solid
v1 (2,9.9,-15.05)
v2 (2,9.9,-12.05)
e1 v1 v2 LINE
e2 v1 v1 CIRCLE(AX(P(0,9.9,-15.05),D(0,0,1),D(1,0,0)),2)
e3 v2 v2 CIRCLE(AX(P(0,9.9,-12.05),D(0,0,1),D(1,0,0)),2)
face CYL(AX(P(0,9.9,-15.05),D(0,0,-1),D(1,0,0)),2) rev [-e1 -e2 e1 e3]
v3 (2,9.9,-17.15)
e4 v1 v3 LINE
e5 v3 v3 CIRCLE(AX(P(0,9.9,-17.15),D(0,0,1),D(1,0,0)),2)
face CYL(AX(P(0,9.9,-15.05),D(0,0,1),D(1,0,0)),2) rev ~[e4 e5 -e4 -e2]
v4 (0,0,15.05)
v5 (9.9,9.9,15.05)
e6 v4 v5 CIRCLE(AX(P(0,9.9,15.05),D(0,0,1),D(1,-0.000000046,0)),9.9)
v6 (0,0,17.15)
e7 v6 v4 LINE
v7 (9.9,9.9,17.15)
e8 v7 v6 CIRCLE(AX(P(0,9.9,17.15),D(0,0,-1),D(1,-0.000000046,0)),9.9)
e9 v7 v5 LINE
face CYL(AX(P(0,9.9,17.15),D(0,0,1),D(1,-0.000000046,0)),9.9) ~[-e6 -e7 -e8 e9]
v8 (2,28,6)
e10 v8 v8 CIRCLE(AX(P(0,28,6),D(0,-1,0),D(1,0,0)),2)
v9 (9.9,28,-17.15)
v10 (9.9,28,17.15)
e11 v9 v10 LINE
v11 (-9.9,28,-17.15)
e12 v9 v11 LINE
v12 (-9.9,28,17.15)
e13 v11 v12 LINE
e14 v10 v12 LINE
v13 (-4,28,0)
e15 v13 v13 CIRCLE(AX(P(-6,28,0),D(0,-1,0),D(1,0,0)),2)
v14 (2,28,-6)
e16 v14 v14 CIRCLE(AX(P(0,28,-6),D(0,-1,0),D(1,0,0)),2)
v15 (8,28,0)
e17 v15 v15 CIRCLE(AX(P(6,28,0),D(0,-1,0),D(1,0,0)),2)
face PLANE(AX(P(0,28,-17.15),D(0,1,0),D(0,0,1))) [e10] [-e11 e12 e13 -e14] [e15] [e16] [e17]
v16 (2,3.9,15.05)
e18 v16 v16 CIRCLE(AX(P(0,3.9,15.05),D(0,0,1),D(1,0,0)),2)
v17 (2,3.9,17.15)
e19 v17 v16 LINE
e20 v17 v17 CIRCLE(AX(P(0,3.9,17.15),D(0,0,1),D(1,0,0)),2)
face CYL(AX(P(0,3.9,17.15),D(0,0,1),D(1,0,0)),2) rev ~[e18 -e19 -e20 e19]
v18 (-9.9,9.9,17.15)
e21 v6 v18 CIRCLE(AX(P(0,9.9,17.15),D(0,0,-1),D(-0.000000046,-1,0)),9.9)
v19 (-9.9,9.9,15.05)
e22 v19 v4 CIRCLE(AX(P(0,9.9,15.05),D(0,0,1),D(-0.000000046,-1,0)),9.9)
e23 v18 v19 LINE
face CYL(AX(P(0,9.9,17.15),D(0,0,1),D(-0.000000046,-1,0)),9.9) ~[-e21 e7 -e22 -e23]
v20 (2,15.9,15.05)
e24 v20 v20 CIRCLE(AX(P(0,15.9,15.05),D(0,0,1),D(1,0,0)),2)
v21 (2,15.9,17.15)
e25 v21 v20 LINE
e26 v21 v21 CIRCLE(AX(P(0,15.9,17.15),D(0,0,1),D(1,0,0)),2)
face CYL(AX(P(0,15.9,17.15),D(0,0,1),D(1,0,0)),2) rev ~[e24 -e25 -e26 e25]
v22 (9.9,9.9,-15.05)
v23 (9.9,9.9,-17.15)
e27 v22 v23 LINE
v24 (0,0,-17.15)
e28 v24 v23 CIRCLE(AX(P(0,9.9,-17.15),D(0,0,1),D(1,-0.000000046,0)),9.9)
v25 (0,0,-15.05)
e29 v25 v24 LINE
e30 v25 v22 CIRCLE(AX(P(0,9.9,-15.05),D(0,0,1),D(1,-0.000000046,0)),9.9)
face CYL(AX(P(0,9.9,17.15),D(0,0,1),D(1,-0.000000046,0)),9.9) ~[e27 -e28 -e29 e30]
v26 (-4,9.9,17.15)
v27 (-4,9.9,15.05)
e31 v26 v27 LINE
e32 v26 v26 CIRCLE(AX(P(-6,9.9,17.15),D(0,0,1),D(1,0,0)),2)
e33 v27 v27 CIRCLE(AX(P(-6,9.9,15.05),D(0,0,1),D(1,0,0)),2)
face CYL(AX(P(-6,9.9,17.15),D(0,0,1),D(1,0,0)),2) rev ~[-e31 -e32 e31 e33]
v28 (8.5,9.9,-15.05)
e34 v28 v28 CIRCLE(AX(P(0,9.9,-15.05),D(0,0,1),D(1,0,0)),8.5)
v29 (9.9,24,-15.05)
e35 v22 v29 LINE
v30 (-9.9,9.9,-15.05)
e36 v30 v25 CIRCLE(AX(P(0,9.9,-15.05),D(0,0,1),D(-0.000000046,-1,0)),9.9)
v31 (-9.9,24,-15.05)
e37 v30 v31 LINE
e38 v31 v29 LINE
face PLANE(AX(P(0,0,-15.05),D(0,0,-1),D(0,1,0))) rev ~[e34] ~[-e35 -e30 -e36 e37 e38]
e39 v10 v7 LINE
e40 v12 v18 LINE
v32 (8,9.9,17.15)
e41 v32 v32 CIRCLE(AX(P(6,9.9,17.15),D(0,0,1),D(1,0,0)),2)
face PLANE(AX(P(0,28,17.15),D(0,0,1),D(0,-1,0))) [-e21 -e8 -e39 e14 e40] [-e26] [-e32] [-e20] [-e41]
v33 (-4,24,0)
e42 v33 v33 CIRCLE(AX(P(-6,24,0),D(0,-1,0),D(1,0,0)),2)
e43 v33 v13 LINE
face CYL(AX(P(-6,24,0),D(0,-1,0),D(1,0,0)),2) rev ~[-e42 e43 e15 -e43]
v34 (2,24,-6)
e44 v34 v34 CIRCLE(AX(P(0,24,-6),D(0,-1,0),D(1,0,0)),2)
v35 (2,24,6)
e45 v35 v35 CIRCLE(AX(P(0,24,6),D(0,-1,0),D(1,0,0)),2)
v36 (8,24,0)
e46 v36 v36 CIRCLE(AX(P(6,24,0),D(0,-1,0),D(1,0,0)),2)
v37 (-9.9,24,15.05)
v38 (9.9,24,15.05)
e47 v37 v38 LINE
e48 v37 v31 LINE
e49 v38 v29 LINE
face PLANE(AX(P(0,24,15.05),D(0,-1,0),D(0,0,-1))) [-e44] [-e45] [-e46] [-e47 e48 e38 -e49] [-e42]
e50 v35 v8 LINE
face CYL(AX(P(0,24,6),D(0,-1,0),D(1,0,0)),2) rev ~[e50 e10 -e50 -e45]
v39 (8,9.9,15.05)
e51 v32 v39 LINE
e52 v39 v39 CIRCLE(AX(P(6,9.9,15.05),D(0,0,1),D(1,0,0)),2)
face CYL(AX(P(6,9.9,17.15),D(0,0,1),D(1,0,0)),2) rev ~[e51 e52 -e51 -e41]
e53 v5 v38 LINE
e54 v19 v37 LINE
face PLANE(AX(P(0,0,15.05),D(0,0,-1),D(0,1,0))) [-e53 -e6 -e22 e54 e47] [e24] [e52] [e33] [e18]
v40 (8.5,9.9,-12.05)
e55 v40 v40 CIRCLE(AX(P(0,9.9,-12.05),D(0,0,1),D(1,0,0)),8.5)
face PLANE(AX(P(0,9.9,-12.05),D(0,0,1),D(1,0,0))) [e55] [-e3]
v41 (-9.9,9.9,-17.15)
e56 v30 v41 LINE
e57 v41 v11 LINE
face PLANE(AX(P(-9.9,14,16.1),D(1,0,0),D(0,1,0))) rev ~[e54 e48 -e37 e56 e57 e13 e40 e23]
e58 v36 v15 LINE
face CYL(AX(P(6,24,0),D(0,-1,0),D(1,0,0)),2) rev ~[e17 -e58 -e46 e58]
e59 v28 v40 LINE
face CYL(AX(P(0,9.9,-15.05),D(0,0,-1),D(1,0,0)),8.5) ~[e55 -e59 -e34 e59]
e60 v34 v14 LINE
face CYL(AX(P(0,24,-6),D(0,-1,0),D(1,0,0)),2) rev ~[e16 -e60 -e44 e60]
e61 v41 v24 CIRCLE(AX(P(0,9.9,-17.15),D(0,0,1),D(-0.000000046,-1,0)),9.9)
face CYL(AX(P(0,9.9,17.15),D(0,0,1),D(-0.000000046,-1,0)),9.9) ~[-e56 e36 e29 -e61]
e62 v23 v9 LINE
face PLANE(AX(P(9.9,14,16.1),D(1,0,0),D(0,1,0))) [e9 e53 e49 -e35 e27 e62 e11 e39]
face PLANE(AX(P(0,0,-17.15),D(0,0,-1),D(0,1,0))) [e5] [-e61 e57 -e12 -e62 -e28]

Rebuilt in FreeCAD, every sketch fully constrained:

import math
import FreeCAD as App
import Part
import Sketcher

doc = App.newDocument("Part")
params = doc.addObject("Spreadsheet::Sheet", "Params")
for row, (alias, value) in enumerate([
    ("sketch1_width", "28 mm"),
    ("sketch1_width2", "24 mm"),
    ("sketch1_height", "2.1 mm"),
    ("sketch1_height2", "30.1 mm"),
    ("pad1_length", "19.8 mm"),
    ("sketch2_radius", "9.9 mm"),
    ("sketch2_width", "5 mm"),
    ("sketch2_height", "14.9 mm"),
    ("sketch3_diameter", "4 mm"),
    ("pocket2_length", "2.1 mm"),
    ("sketch4_diameter", "17 mm"),
    ("sketch4_diameter2", "4 mm"),
    ("pad2_length", "3 mm"),
    ("sketch5_diameter", "4 mm"),
    ("sketch6_diameter", "4 mm"),
], start=1):
    params.set(f"A{row}", alias)
    params.set(f"B{row}", "=" + value)
    params.setAlias(f"B{row}", alias)

body = doc.addObject("PartDesign::Body", "Body")

sketch1 = body.newObject("Sketcher::SketchObject", "Sketch")
sketch1.AttachmentSupport = (doc.getObject("YZ_Plane"), [""])
sketch1.MapMode = "FlatFace"
sketch1.addGeometry(Part.LineSegment(App.Vector(28, 17.1, 0), App.Vector(0, 17.1, 0)), False)
sketch1.addGeometry(Part.LineSegment(App.Vector(0, 17.1, 0), App.Vector(0, 15.1, 0)), False)
sketch1.addGeometry(Part.LineSegment(App.Vector(0, 15.1, 0), App.Vector(24, 15.1, 0)), False)
sketch1.addGeometry(Part.LineSegment(App.Vector(24, 15.1, 0), App.Vector(24, -15.1, 0)), False)
sketch1.addGeometry(Part.LineSegment(App.Vector(24, -15.1, 0), App.Vector(0, -15.1, 0)), False)
sketch1.addGeometry(Part.LineSegment(App.Vector(0, -15.1, 0), App.Vector(0, -17.1, 0)), False)
sketch1.addGeometry(Part.LineSegment(App.Vector(0, -17.1, 0), App.Vector(28, -17.1, 0)), False)
sketch1.addGeometry(Part.LineSegment(App.Vector(28, -17.1, 0), App.Vector(28, 17.1, 0)), False)
sketch1.addConstraint(Sketcher.Constraint("Coincident", 0, 2, 1, 1))
sketch1.addConstraint(Sketcher.Constraint("Coincident", 1, 2, 2, 1))
sketch1.addConstraint(Sketcher.Constraint("Coincident", 2, 2, 3, 1))
sketch1.addConstraint(Sketcher.Constraint("Coincident", 3, 2, 4, 1))
sketch1.addConstraint(Sketcher.Constraint("Coincident", 4, 2, 5, 1))
sketch1.addConstraint(Sketcher.Constraint("Coincident", 5, 2, 6, 1))
sketch1.addConstraint(Sketcher.Constraint("Coincident", 6, 2, 7, 1))
sketch1.addConstraint(Sketcher.Constraint("Coincident", 7, 2, 0, 1))
sketch1.addConstraint(Sketcher.Constraint("Horizontal", 0))
sketch1.addConstraint(Sketcher.Constraint("Vertical", 1))
sketch1.addConstraint(Sketcher.Constraint("Horizontal", 2))
sketch1.addConstraint(Sketcher.Constraint("Vertical", 3))
sketch1.addConstraint(Sketcher.Constraint("Horizontal", 4))
sketch1.addConstraint(Sketcher.Constraint("Vertical", 5))
sketch1.addConstraint(Sketcher.Constraint("Horizontal", 6))
sketch1.addConstraint(Sketcher.Constraint("Vertical", 7))
sketch1.addConstraint(Sketcher.Constraint("Symmetric", 1, 2, 4, 2, -1, 1))
sketch1.addConstraint(Sketcher.Constraint("Symmetric", 0, 2, 5, 2, -1))
sketch1.addConstraint(Sketcher.Constraint("DistanceX", 0, 2, 0, 1, 28.0))
sketch1.addConstraint(Sketcher.Constraint("DistanceX", 2, 1, 2, 2, 24.0))
sketch1.addConstraint(Sketcher.Constraint("DistanceY", 1, 2, 1, 1, 2.1))
sketch1.addConstraint(Sketcher.Constraint("DistanceY", 3, 2, 3, 1, 30.1))
sketch1.setExpression("Constraints[18]", "Params.sketch1_width")
sketch1.setExpression("Constraints[19]", "Params.sketch1_width2")
sketch1.setExpression("Constraints[20]", "Params.sketch1_height")
sketch1.setExpression("Constraints[21]", "Params.sketch1_height2")
pad1 = body.newObject("PartDesign::Pad", "Pad")
pad1.Profile = sketch1
pad1.setExpression("Length", "Params.pad1_length")
pad1.Midplane = True

sketch2 = body.newObject("Sketcher::SketchObject", "Sketch001")
sketch2.AttachmentSupport = (doc.getObject("XY_Plane"), [""])
sketch2.MapMode = "FlatFace"
sketch2.AttachmentOffset = App.Placement(App.Vector(0, 0, 17.15), App.Rotation())
sketch2.addGeometry(Part.LineSegment(App.Vector(-10, 10, 0), App.Vector(-15, 10, 0)), False)
sketch2.addGeometry(Part.LineSegment(App.Vector(-15, 10, 0), App.Vector(-15, -5, 0)), False)
sketch2.addGeometry(Part.LineSegment(App.Vector(-15, -5, 0), App.Vector(15, -5, 0)), False)
sketch2.addGeometry(Part.LineSegment(App.Vector(15, -5, 0), App.Vector(15, 10, 0)), False)
sketch2.addGeometry(Part.LineSegment(App.Vector(15, 10, 0), App.Vector(10, 10, 0)), False)
sketch2.addGeometry(Part.ArcOfCircle(Part.Circle(App.Vector(0, 10, 0), App.Vector(0, 0, 1), 10), math.radians(-90), math.radians(0)), False)
sketch2.addGeometry(Part.ArcOfCircle(Part.Circle(App.Vector(0, 10, 0), App.Vector(0, 0, 1), 10), math.radians(-180), math.radians(-90)), False)
sketch2.addConstraint(Sketcher.Constraint("Coincident", 0, 2, 1, 1))
sketch2.addConstraint(Sketcher.Constraint("Coincident", 1, 2, 2, 1))
sketch2.addConstraint(Sketcher.Constraint("Coincident", 2, 2, 3, 1))
sketch2.addConstraint(Sketcher.Constraint("Coincident", 3, 2, 4, 1))
sketch2.addConstraint(Sketcher.Constraint("Coincident", 4, 2, 5, 2))
sketch2.addConstraint(Sketcher.Constraint("Tangent", 5, 1, 6, 2))
sketch2.addConstraint(Sketcher.Constraint("Coincident", 6, 1, 0, 1))
sketch2.addConstraint(Sketcher.Constraint("Horizontal", 0))
sketch2.addConstraint(Sketcher.Constraint("Vertical", 1))
sketch2.addConstraint(Sketcher.Constraint("Horizontal", 2))
sketch2.addConstraint(Sketcher.Constraint("Vertical", 3))
sketch2.addConstraint(Sketcher.Constraint("Horizontal", 4))
sketch2.addConstraint(Sketcher.Constraint("Coincident", 5, 1, -1, 1))
sketch2.addConstraint(Sketcher.Constraint("Equal", 5, 6))
sketch2.addConstraint(Sketcher.Constraint("Symmetric", 0, 2, 3, 2, -2))
sketch2.addConstraint(Sketcher.Constraint("PointOnObject", 5, 3, -2))
sketch2.addConstraint(Sketcher.Constraint("Horizontal", 6, 3, 0, 2))
sketch2.addConstraint(Sketcher.Constraint("Radius", 5, 9.9))
sketch2.addConstraint(Sketcher.Constraint("DistanceX", 0, 2, 0, 1, 5.0))
sketch2.addConstraint(Sketcher.Constraint("DistanceY", 1, 2, 1, 1, 14.9))
sketch2.setExpression("Constraints[17]", "Params.sketch2_radius")
sketch2.setExpression("Constraints[18]", "Params.sketch2_width")
sketch2.setExpression("Constraints[19]", "Params.sketch2_height")
pocket1 = body.newObject("PartDesign::Pocket", "Pocket")
pocket1.Profile = sketch2
pocket1.Type = "ThroughAll"

sketch3 = body.newObject("Sketcher::SketchObject", "Sketch002")
sketch3.AttachmentSupport = (doc.getObject("XY_Plane"), [""])
sketch3.MapMode = "FlatFace"
sketch3.AttachmentOffset = App.Placement(App.Vector(0, 0, 17.15), App.Rotation())
sketch3.addGeometry(Part.Circle(App.Vector(-6, 9.9, 0), App.Vector(0, 0, 1), 2), False)
sketch3.addGeometry(Part.Circle(App.Vector(0, 15.9, 0), App.Vector(0, 0, 1), 2), False)
sketch3.addGeometry(Part.Circle(App.Vector(6, 9.9, 0), App.Vector(0, 0, 1), 2), False)
sketch3.addGeometry(Part.Circle(App.Vector(0, 3.9, 0), App.Vector(0, 0, 1), 2), False)
sketch3.addConstraint(Sketcher.Constraint("Equal", 0, 1))
sketch3.addConstraint(Sketcher.Constraint("Equal", 1, 2))
sketch3.addConstraint(Sketcher.Constraint("Equal", 2, 3))
sketch3.addConstraint(Sketcher.Constraint("Symmetric", 0, 3, 2, 3, -2))
sketch3.addConstraint(Sketcher.Constraint("PointOnObject", 1, 3, -2))
sketch3.addConstraint(Sketcher.Constraint("PointOnObject", 3, 3, -2))
sketch3.addConstraint(Sketcher.Constraint("Diameter", 0, 4.0))
sketch3.addConstraint(Sketcher.Constraint("DistanceX", 0, 3, -1, 1, 6.0))
sketch3.addConstraint(Sketcher.Constraint("DistanceY", 0, 3, 1, 3, 6.0))
sketch3.addConstraint(Sketcher.Constraint("DistanceY", 3, 3, 0, 3, 6.0))
sketch3.addConstraint(Sketcher.Constraint("DistanceY", -1, 1, 0, 3, 9.9))
sketch3.setExpression("Constraints[6]", "Params.sketch3_diameter")
pocket2 = body.newObject("PartDesign::Pocket", "Pocket001")
pocket2.Profile = sketch3
pocket2.setExpression("Length", "Params.pocket2_length")

sketch4 = body.newObject("Sketcher::SketchObject", "Sketch003")
sketch4.AttachmentSupport = (doc.getObject("XY_Plane"), [""])
sketch4.MapMode = "FlatFace"
sketch4.AttachmentOffset = App.Placement(App.Vector(0, 0, -15.05), App.Rotation())
sketch4.addGeometry(Part.Circle(App.Vector(0, 9.9, 0), App.Vector(0, 0, 1), 8.5), False)
sketch4.addGeometry(Part.Circle(App.Vector(0, 9.9, 0), App.Vector(0, 0, 1), 2), False)
sketch4.addConstraint(Sketcher.Constraint("Coincident", 1, 3, 0, 3))
sketch4.addConstraint(Sketcher.Constraint("PointOnObject", 0, 3, -2))
sketch4.addConstraint(Sketcher.Constraint("Diameter", 0, 17.0))
sketch4.addConstraint(Sketcher.Constraint("Diameter", 1, 4.0))
sketch4.addConstraint(Sketcher.Constraint("DistanceY", -1, 1, 0, 3, 9.9))
sketch4.setExpression("Constraints[2]", "Params.sketch4_diameter")
sketch4.setExpression("Constraints[3]", "Params.sketch4_diameter2")
pad2 = body.newObject("PartDesign::Pad", "Pad001")
pad2.Profile = sketch4
pad2.setExpression("Length", "Params.pad2_length")

sketch5 = body.newObject("Sketcher::SketchObject", "Sketch004")
sketch5.AttachmentSupport = (doc.getObject("XY_Plane"), [""])
sketch5.MapMode = "FlatFace"
sketch5.AttachmentOffset = App.Placement(App.Vector(0, 0, -15.05), App.Rotation())
sketch5.addGeometry(Part.Circle(App.Vector(0, 9.9, 0), App.Vector(0, 0, 1), 2), False)
sketch5.addConstraint(Sketcher.Constraint("PointOnObject", 0, 3, -2))
sketch5.addConstraint(Sketcher.Constraint("Diameter", 0, 4.0))
sketch5.addConstraint(Sketcher.Constraint("DistanceY", -1, 1, 0, 3, 9.9))
sketch5.setExpression("Constraints[1]", "Params.sketch5_diameter")
pocket3 = body.newObject("PartDesign::Pocket", "Pocket002")
pocket3.Profile = sketch5
pocket3.Type = "ThroughAll"

sketch6 = body.newObject("Sketcher::SketchObject", "Sketch005")
sketch6.AttachmentSupport = (doc.getObject("XZ_Plane"), [""])
sketch6.MapMode = "FlatFace"
sketch6.AttachmentOffset = App.Placement(App.Vector(0, 0, -24), App.Rotation())
sketch6.addGeometry(Part.Circle(App.Vector(0, 6, 0), App.Vector(0, 0, 1), 2), False)
sketch6.addGeometry(Part.Circle(App.Vector(6, 0, 0), App.Vector(0, 0, 1), 2), False)
sketch6.addGeometry(Part.Circle(App.Vector(0, -6, 0), App.Vector(0, 0, 1), 2), False)
sketch6.addGeometry(Part.Circle(App.Vector(-6, 0, 0), App.Vector(0, 0, 1), 2), False)
sketch6.addConstraint(Sketcher.Constraint("Equal", 0, 1))
sketch6.addConstraint(Sketcher.Constraint("Equal", 1, 2))
sketch6.addConstraint(Sketcher.Constraint("Equal", 2, 3))
sketch6.addConstraint(Sketcher.Constraint("Symmetric", 0, 3, 2, 3, -1, 1))
sketch6.addConstraint(Sketcher.Constraint("Symmetric", 1, 3, 3, 3, -1, 1))
sketch6.addConstraint(Sketcher.Constraint("PointOnObject", 0, 3, -2))
sketch6.addConstraint(Sketcher.Constraint("PointOnObject", 1, 3, -1))
sketch6.addConstraint(Sketcher.Constraint("Diameter", 0, 4.0))
sketch6.addConstraint(Sketcher.Constraint("DistanceY", -1, 1, 0, 3, 6.0))
sketch6.addConstraint(Sketcher.Constraint("DistanceX", -1, 1, 1, 3, 6.0))
sketch6.setExpression("Constraints[7]", "Params.sketch6_diameter")
pocket4 = body.newObject("PartDesign::Pocket", "Pocket003")
pocket4.Profile = sketch6
pocket4.Type = "ThroughAll"

doc.recompute()
